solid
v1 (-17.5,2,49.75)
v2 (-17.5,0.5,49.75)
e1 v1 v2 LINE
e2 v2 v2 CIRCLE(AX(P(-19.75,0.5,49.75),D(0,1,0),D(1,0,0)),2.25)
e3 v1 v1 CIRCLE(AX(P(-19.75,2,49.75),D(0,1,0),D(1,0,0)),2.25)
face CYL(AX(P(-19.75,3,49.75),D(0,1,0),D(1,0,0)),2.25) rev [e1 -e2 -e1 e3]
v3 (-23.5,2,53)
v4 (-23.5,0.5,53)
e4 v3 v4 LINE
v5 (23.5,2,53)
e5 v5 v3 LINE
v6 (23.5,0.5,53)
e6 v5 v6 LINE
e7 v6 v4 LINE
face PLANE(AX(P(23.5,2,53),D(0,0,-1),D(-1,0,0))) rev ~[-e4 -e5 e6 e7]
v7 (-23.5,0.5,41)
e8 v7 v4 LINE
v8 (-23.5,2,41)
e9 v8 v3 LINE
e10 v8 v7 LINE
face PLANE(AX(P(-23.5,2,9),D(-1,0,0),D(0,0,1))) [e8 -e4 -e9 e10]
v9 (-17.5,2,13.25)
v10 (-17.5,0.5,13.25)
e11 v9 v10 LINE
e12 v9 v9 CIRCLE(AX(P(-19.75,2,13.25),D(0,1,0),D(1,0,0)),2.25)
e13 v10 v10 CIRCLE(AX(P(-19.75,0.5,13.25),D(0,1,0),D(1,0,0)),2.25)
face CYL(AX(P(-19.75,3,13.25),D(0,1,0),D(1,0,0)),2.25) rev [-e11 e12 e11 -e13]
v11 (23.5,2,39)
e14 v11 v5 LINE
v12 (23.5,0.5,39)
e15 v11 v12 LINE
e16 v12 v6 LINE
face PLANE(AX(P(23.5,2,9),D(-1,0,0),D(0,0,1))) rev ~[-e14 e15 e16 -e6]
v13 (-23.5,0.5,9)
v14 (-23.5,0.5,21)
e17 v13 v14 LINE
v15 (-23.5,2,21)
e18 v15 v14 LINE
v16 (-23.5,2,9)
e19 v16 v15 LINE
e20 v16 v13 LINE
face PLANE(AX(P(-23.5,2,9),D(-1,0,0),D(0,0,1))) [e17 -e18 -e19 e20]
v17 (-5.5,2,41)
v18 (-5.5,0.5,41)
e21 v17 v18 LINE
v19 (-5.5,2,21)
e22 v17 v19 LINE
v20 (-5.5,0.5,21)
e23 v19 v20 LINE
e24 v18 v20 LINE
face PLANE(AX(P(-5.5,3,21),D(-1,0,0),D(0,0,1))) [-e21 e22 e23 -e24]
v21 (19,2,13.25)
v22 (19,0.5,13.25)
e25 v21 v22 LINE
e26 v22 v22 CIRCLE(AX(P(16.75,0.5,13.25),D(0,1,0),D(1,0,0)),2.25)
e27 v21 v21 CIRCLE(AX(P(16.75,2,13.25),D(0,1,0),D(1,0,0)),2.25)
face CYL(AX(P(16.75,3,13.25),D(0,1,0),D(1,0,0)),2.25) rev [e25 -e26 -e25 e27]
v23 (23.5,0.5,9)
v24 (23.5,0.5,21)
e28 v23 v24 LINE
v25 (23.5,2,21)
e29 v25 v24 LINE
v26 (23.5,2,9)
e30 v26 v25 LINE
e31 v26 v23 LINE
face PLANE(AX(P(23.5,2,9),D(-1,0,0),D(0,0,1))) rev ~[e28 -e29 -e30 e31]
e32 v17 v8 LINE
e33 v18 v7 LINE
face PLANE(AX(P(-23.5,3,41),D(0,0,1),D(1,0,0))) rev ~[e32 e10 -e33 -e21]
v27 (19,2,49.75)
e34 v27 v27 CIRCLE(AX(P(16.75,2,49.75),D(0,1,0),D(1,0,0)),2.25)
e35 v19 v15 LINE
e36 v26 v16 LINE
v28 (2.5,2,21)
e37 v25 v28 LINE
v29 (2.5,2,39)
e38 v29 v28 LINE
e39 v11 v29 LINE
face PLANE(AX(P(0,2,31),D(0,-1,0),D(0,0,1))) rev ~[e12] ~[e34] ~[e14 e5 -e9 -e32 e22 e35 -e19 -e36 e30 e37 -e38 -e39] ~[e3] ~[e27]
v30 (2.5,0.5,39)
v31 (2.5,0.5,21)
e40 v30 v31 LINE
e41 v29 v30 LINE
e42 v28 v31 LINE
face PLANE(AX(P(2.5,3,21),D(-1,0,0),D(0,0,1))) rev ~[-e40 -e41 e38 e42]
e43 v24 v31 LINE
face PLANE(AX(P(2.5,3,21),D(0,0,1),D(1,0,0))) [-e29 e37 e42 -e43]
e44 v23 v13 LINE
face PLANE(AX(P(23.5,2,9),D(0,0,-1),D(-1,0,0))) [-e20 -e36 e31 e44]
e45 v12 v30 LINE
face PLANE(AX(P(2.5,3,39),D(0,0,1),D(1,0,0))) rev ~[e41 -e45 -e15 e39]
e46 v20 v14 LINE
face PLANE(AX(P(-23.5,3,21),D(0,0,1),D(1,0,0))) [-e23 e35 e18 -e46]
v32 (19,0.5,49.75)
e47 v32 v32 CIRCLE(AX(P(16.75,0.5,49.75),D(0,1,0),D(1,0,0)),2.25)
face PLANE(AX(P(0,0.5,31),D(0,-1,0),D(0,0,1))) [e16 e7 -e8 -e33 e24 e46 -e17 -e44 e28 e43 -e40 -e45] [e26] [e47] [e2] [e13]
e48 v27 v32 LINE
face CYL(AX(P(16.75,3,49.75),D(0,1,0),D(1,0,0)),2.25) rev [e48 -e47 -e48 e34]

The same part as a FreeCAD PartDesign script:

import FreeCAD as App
import Part
import Sketcher

V = App.Vector
Q = App.Units.Quantity

doc = App.newDocument("Part")
body = doc.addObject("PartDesign::Body", "Body")

sketch1 = body.newObject("Sketcher::SketchObject", "Sketch")
sketch1.AttachmentSupport = (doc.getObject("XY_Plane"), [""])
sketch1.MapMode = "FlatFace"
sketch1.AttachmentOffset = App.Placement(V(0, 0, -1), App.Rotation())
sketch1.addGeometry([
    Part.LineSegment(V(-21, 30, 0), V(-21, 12, 0)),
    Part.LineSegment(V(-21, 12, 0), V(0, 12, 0)),
    Part.LineSegment(V(0, 12, 0), V(0, 30, 0)),
    Part.LineSegment(V(0, 30, 0), V(-21, 30, 0)),
], False)
sketch1.addConstraint([
    Sketcher.Constraint("Coincident", 0, 2, 1, 1),
    Sketcher.Constraint("Coincident", 1, 2, 2, 1),
    Sketcher.Constraint("Coincident", 2, 2, 3, 1),
    Sketcher.Constraint("Coincident", 3, 2, 0, 1),
    Sketcher.Constraint("Vertical", 0),
    Sketcher.Constraint("Horizontal", 1),
    Sketcher.Constraint("Vertical", 2),
    Sketcher.Constraint("Horizontal", 3),
    Sketcher.Constraint("PointOnObject", 1, 2, -2),
    Sketcher.Constraint("DistanceX", 1, 1, 1, 2, Q("21 mm")),
    Sketcher.Constraint("DistanceY", 0, 2, 0, 1, Q("18 mm")),
    Sketcher.Constraint("DistanceY", -1, 1, 0, 2, Q("12 mm")),
])
pad1 = body.newObject("PartDesign::Pad", "Pad")
pad1.Profile = sketch1
pad1.Length = 10
body2 = doc.addObject("PartDesign::Body", "Body001")
body2.AllowCompound = True

sketch2 = body2.newObject("Sketcher::SketchObject", "Sketch001")
sketch2.AttachmentSupport = (doc.getObject("XY_Plane001"), [""])
sketch2.MapMode = "FlatFace"
sketch2.AttachmentOffset = App.Placement(V(0, 0, -1), App.Rotation())
sketch2.addGeometry([
    Part.LineSegment(V(-47, 32, 0), V(-47, 12, 0)),
    Part.LineSegment(V(-47, 12, 0), V(-29, 12, 0)),
    Part.LineSegment(V(-29, 12, 0), V(-29, 32, 0)),
    Part.LineSegment(V(-29, 32, 0), V(-47, 32, 0)),
], False)
sketch2.addConstraint([
    Sketcher.Constraint("Coincident", 0, 2, 1, 1),
    Sketcher.Constraint("Coincident", 1, 2, 2, 1),
    Sketcher.Constraint("Coincident", 2, 2, 3, 1),
    Sketcher.Constraint("Coincident", 3, 2, 0, 1),
    Sketcher.Constraint("Vertical", 0),
    Sketcher.Constraint("Horizontal", 1),
    Sketcher.Constraint("Vertical", 2),
    Sketcher.Constraint("Horizontal", 3),
    Sketcher.Constraint("DistanceX", 1, 1, 1, 2, Q("18 mm")),
    Sketcher.Constraint("DistanceY", 0, 2, 0, 1, Q("20 mm")),
    Sketcher.Constraint("DistanceX", 0, 2, -1, 1, Q("47 mm")),
    Sketcher.Constraint("DistanceY", -1, 1, 0, 2, Q("12 mm")),
])
pad2 = body2.newObject("PartDesign::Pad", "Pad001")
pad2.Profile = sketch2
pad2.Length = 10
doc.recompute()

boolean = body2.newObject("PartDesign::Boolean", "Boolean")
boolean.Type = "Fuse"
boolean.addObjects([body])
body3 = doc.addObject("PartDesign::Body", "Body002")

sketch3 = body3.newObject("Sketcher::SketchObject", "Sketch002")
sketch3.AttachmentSupport = (doc.getObject("XY_Plane002"), [""])
sketch3.MapMode = "FlatFace"
sketch3.AttachmentOffset = App.Placement(V(0, 0, -1), App.Rotation())
sketch3.addGeometry(Part.Circle(V(-6.75, 4.25, 0), V(0, 0, 1), 2.25), False)
sketch3.addConstraint([
    Sketcher.Constraint("Diameter", 0, Q("4.5 mm")),
    Sketcher.Constraint("DistanceX", 0, 3, -1, 1, Q("6.75 mm")),
    Sketcher.Constraint("DistanceY", -1, 1, 0, 3, Q("4.25 mm")),
])
pad3 = body3.newObject("PartDesign::Pad", "Pad002")
pad3.Profile = sketch3
pad3.Length = 10
body4 = doc.addObject("PartDesign::Body", "Body003")

sketch4 = body4.newObject("Sketcher::SketchObject", "Sketch003")
sketch4.AttachmentSupport = (doc.getObject("XY_Plane003"), [""])
sketch4.MapMode = "FlatFace"
sketch4.AttachmentOffset = App.Placement(V(0, 0, -1), App.Rotation())
sketch4.addGeometry(Part.Circle(V(-43.25, 4.25, 0), V(0, 0, 1), 2.25), False)
sketch4.addConstraint([
    Sketcher.Constraint("Diameter", 0, Q("4.5 mm")),
    Sketcher.Constraint("DistanceX", 0, 3, -1, 1, Q("43.25 mm")),
    Sketcher.Constraint("DistanceY", -1, 1, 0, 3, Q("4.25 mm")),
])
pad4 = body4.newObject("PartDesign::Pad", "Pad003")
pad4.Profile = sketch4
pad4.Length = 10
body5 = doc.addObject("PartDesign::Body", "Body004")

sketch5 = body5.newObject("Sketcher::SketchObject", "Sketch004")
sketch5.AttachmentSupport = (doc.getObject("XY_Plane004"), [""])
sketch5.MapMode = "FlatFace"
sketch5.AttachmentOffset = App.Placement(V(0, 0, -1), App.Rotation())
sketch5.addGeometry(Part.Circle(V(-6.75, 40.75, 0), V(0, 0, 1), 2.25), False)
sketch5.addConstraint([
    Sketcher.Constraint("Diameter", 0, Q("4.5 mm")),
    Sketcher.Constraint("DistanceX", 0, 3, -1, 1, Q("6.75 mm")),
    Sketcher.Constraint("DistanceY", -1, 1, 0, 3, Q("40.75 mm")),
])
pad5 = body5.newObject("PartDesign::Pad", "Pad004")
pad5.Profile = sketch5
pad5.Length = 10
body6 = doc.addObject("PartDesign::Body", "Body005")
body6.AllowCompound = True

sketch6 = body6.newObject("Sketcher::SketchObject", "Sketch005")
sketch6.AttachmentSupport = (doc.getObject("XY_Plane005"), [""])
sketch6.MapMode = "FlatFace"
sketch6.AttachmentOffset = App.Placement(V(0, 0, -1), App.Rotation())
sketch6.addGeometry(Part.Circle(V(-43.25, 40.75, 0), V(0, 0, 1), 2.25), False)
sketch6.addConstraint([
    Sketcher.Constraint("Diameter", 0, Q("4.5 mm")),
    Sketcher.Constraint("DistanceX", 0, 3, -1, 1, Q("43.25 mm")),
    Sketcher.Constraint("DistanceY", -1, 1, 0, 3, Q("40.75 mm")),
])
pad6 = body6.newObject("PartDesign::Pad", "Pad005")
pad6.Profile = sketch6
pad6.Length = 10
doc.recompute()

boolean2 = body6.newObject("PartDesign::Boolean", "Boolean001")
boolean2.Type = "Fuse"
boolean2.addObjects([body3])
doc.recompute()

boolean3 = body6.newObject("PartDesign::Boolean", "Boolean002")
boolean3.Type = "Fuse"
boolean3.addObjects([body4])
doc.recompute()

boolean4 = body6.newObject("PartDesign::Boolean", "Boolean003")
boolean4.Type = "Fuse"
boolean4.addObjects([body5])
body7 = doc.addObject("PartDesign::Body", "Body006")

sketch7 = body7.newObject("Sketcher::SketchObject", "Sketch006")
sketch7.AttachmentSupport = (doc.getObject("XY_Plane006"), [""])
sketch7.MapMode = "FlatFace"
sketch7.addGeometry([
    Part.LineSegment(V(-47, 0, 0), V(0, 0, 0)),
    Part.LineSegment(V(0, 0, 0), V(0, 44, 0)),
    Part.LineSegment(V(0, 44, 0), V(-47, 44, 0)),
    Part.LineSegment(V(-47, 44, 0), V(-47, 0, 0)),
], False)
sketch7.addConstraint([
    Sketcher.Constraint("Coincident", 0, 2, 1, 1),
    Sketcher.Constraint("Coincident", 1, 2, 2, 1),
    Sketcher.Constraint("Coincident", 2, 2, 3, 1),
    Sketcher.Constraint("Coincident", 3, 2, 0, 1),
    Sketcher.Constraint("Horizontal", 0),
    Sketcher.Constraint("Vertical", 1),
    Sketcher.Constraint("Horizontal", 2),
    Sketcher.Constraint("Vertical", 3),
    Sketcher.Constraint("Coincident", 0, 2, -1, 1),
    Sketcher.Constraint("DistanceX", 0, 1, 0, 2, Q("47 mm")),
    Sketcher.Constraint("DistanceY", 1, 1, 1, 2, Q("44 mm")),
])
pad7 = body7.newObject("PartDesign::Pad", "Pad006")
pad7.Profile = sketch7
pad7.Length = 1.5
doc.recompute()

boolean5 = body7.newObject("PartDesign::Boolean", "Boolean004")
boolean5.Type = "Cut"
boolean5.addObjects([body6])
doc.recompute()

boolean6 = body7.newObject("PartDesign::Boolean", "Boolean005")
boolean6.Type = "Cut"
boolean6.addObjects([body2])
body8 = doc.addObject("PartDesign::Body", "Body007")
doc.recompute()

body7.Placement = App.Placement(V(23.5, 2, 9), App.Rotation(V(1, 0, 0), 90))
boolean7 = body8.newObject("PartDesign::Boolean", "Boolean006")
boolean7.Type = "Fuse"
boolean7.addObjects([body7])

doc.recompute()
